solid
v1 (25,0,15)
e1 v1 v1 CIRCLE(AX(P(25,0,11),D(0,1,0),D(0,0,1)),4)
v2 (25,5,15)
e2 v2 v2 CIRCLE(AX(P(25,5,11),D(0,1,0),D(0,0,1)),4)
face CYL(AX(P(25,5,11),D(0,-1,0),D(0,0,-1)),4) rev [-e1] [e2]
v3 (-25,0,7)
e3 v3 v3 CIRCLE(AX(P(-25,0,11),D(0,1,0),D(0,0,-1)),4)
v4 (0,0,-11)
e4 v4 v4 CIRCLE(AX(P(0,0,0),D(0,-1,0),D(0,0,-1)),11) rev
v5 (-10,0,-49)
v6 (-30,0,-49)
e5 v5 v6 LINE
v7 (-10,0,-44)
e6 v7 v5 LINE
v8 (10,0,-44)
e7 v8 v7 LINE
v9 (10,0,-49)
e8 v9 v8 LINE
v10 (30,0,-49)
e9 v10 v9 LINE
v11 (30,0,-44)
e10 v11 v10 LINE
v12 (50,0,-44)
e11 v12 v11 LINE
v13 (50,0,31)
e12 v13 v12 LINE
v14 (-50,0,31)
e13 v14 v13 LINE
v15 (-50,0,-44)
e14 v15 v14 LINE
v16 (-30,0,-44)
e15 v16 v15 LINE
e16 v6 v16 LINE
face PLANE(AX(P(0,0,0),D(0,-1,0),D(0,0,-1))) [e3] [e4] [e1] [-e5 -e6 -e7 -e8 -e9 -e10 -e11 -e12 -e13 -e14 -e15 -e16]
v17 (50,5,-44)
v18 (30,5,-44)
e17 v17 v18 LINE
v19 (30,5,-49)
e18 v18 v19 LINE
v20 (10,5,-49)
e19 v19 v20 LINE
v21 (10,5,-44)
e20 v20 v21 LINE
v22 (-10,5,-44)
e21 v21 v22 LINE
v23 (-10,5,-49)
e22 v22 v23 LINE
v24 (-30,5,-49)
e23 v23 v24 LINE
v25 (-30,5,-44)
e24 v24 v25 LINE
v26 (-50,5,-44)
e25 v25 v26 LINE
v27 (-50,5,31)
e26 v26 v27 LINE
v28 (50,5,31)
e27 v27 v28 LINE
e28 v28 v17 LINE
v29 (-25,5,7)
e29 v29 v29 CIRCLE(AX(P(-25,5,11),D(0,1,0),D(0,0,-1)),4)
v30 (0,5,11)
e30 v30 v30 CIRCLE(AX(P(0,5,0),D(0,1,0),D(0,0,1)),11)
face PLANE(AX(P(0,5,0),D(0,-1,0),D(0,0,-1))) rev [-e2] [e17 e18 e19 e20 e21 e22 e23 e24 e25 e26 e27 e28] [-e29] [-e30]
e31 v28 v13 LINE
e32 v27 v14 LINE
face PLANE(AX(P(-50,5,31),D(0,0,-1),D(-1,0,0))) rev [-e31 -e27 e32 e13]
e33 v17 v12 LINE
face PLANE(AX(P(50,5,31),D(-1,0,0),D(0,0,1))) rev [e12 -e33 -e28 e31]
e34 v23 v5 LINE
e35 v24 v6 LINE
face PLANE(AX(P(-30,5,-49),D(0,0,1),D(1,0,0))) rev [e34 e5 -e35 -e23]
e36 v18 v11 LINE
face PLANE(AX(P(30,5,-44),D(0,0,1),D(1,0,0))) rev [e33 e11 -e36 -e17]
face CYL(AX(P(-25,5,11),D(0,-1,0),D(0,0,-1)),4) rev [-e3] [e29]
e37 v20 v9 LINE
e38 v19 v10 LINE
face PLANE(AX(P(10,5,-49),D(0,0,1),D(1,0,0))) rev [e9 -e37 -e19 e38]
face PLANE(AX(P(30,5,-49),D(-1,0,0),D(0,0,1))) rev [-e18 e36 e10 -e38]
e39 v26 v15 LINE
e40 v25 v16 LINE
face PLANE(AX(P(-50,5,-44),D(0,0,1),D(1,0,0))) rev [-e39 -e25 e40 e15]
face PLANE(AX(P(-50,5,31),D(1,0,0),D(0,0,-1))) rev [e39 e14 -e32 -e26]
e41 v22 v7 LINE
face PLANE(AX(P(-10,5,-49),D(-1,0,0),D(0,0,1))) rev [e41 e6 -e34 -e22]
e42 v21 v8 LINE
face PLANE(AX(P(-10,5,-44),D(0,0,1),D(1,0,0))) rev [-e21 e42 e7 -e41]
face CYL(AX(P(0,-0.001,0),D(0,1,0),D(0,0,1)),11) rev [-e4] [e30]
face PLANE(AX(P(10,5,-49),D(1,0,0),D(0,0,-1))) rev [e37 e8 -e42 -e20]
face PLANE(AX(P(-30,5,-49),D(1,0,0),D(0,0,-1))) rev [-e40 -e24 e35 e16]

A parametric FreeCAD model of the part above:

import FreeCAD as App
import Part
import Sketcher
Q = App.Units.Quantity

doc = App.newDocument("Part")
body = doc.addObject("PartDesign::Body", "Body")

# Sketch on XZ plane
sketch1 = doc.addObject("Sketcher::SketchObject", "Sketch")
body.addObject(sketch1)
sketch1.AttachmentSupport = (doc.XZ_Plane, [""])
sketch1.MapMode = "FlatFace"
sketch1.addGeometry(Part.LineSegment(App.Vector(-30, -44, 0), App.Vector(-50, -44, 0)), False)
sketch1.addGeometry(Part.LineSegment(App.Vector(-50, -44, 0), App.Vector(-50, 31, 0)), False)
sketch1.addGeometry(Part.LineSegment(App.Vector(-50, 31, 0), App.Vector(50, 31, 0)), False)
sketch1.addGeometry(Part.LineSegment(App.Vector(50, 31, 0), App.Vector(50, -44, 0)), False)
sketch1.addGeometry(Part.LineSegment(App.Vector(50, -44, 0), App.Vector(30, -44, 0)), False)
sketch1.addGeometry(Part.LineSegment(App.Vector(30, -44, 0), App.Vector(30, -49, 0)), False)
sketch1.addGeometry(Part.LineSegment(App.Vector(30, -49, 0), App.Vector(10, -49, 0)), False)
sketch1.addGeometry(Part.LineSegment(App.Vector(10, -49, 0), App.Vector(10, -44, 0)), False)
sketch1.addGeometry(Part.LineSegment(App.Vector(10, -44, 0), App.Vector(-10, -44, 0)), False)
sketch1.addGeometry(Part.LineSegment(App.Vector(-10, -44, 0), App.Vector(-10, -49, 0)), False)
sketch1.addGeometry(Part.LineSegment(App.Vector(-10, -49, 0), App.Vector(-30, -49, 0)), False)
sketch1.addGeometry(Part.LineSegment(App.Vector(-30, -49, 0), App.Vector(-30, -44, 0)), False)
sketch1.addGeometry(Part.Circle(App.Vector(25, 11, 0), App.Vector(0, 0, 1), 4), False)
sketch1.addGeometry(Part.Circle(App.Vector(-25, 11, 0), App.Vector(0, 0, 1), 4), False)
sketch1.addGeometry(Part.Circle(App.Vector(0, 0, 0), App.Vector(0, 0, 1), 4), False)
sketch1.addConstraint(Sketcher.Constraint("Coincident", 0, 2, 1, 1))
sketch1.addConstraint(Sketcher.Constraint("Coincident", 1, 2, 2, 1))
sketch1.addConstraint(Sketcher.Constraint("Coincident", 2, 2, 3, 1))
sketch1.addConstraint(Sketcher.Constraint("Coincident", 3, 2, 4, 1))
sketch1.addConstraint(Sketcher.Constraint("Coincident", 4, 2, 5, 1))
sketch1.addConstraint(Sketcher.Constraint("Coincident", 5, 2, 6, 1))
sketch1.addConstraint(Sketcher.Constraint("Coincident", 6, 2, 7, 1))
sketch1.addConstraint(Sketcher.Constraint("Coincident", 7, 2, 8, 1))
sketch1.addConstraint(Sketcher.Constraint("Coincident", 8, 2, 9, 1))
sketch1.addConstraint(Sketcher.Constraint("Coincident", 9, 2, 10, 1))
sketch1.addConstraint(Sketcher.Constraint("Coincident", 10, 2, 11, 1))
sketch1.addConstraint(Sketcher.Constraint("Coincident", 11, 2, 0, 1))
sketch1.addConstraint(Sketcher.Constraint("Horizontal", 0))
sketch1.addConstraint(Sketcher.Constraint("Vertical", 1))
sketch1.addConstraint(Sketcher.Constraint("Horizontal", 2))
sketch1.addConstraint(Sketcher.Constraint("Vertical", 3))
sketch1.addConstraint(Sketcher.Constraint("Horizontal", 4))
sketch1.addConstraint(Sketcher.Constraint("Vertical", 5))
sketch1.addConstraint(Sketcher.Constraint("Horizontal", 6))
sketch1.addConstraint(Sketcher.Constraint("Vertical", 7))
sketch1.addConstraint(Sketcher.Constraint("Horizontal", 8))
sketch1.addConstraint(Sketcher.Constraint("Vertical", 9))
sketch1.addConstraint(Sketcher.Constraint("Horizontal", 10))
sketch1.addConstraint(Sketcher.Constraint("Vertical", 11))
sketch1.addConstraint(Sketcher.Constraint("Coincident", 14, 3, -1, 1))
sketch1.addConstraint(Sketcher.Constraint("Equal", 12, 13))
sketch1.addConstraint(Sketcher.Constraint("Equal", 13, 14))
sketch1.addConstraint(Sketcher.Constraint("Symmetric", 12, 3, 13, 3, -2))
sketch1.addConstraint(Sketcher.Constraint("Symmetric", 0, 2, 3, 2, -2))
sketch1.addConstraint(Sketcher.Constraint("Symmetric", 6, 2, 9, 2, -2))
sketch1.addConstraint(Sketcher.Constraint("Horizontal", 4, 2, 7, 2))
sketch1.addConstraint(Sketcher.Constraint("Equal", 0, 4))
sketch1.addConstraint(Sketcher.Constraint("Equal", 4, 6))
sketch1.addConstraint(Sketcher.Constraint("Equal", 6, 8))
sketch1.addConstraint(Sketcher.Constraint("Diameter", 12, Q("8 mm")))
sketch1.addConstraint(Sketcher.Constraint("DistanceX", 0, 2, 0, 1, Q("20 mm")))
sketch1.addConstraint(Sketcher.Constraint("DistanceY", 1, 1, 1, 2, Q("75 mm")))
sketch1.addConstraint(Sketcher.Constraint("DistanceY", 5, 2, 5, 1, Q("5 mm")))
sketch1.addConstraint(Sketcher.Constraint("DistanceX", -1, 1, 12, 3, Q("25 mm")))
sketch1.addConstraint(Sketcher.Constraint("DistanceY", -1, 1, 12, 3, Q("11 mm")))
sketch1.addConstraint(Sketcher.Constraint("DistanceY", 0, 2, -1, 1, Q("44 mm")))
pad1 = doc.addObject("PartDesign::Pad", "Pad")
body.addObject(pad1)
pad1.Profile = sketch1
pad1.Length = 5
pad1.Reversed = True

# Sketch on XZ plane
sketch2 = doc.addObject("Sketcher::SketchObject", "Sketch001")
body.addObject(sketch2)
sketch2.AttachmentSupport = (doc.XZ_Plane, [""])
sketch2.MapMode = "FlatFace"
sketch2.AttachmentOffset = App.Placement(App.Vector(0, 0, -5), App.Rotation())
sketch2.addGeometry(Part.Circle(App.Vector(0, 0, 0), App.Vector(0, 0, 1), 11), False)
sketch2.addConstraint(Sketcher.Constraint("Coincident", 0, 3, -1, 1))
sketch2.addConstraint(Sketcher.Constraint("Diameter", 0, Q("22 mm")))
pocket1 = doc.addObject("PartDesign::Pocket", "Pocket")
body.addObject(pocket1)
pocket1.Profile = sketch2
pocket1.Length = 5
pocket1.Reversed = True

doc.recompute()
